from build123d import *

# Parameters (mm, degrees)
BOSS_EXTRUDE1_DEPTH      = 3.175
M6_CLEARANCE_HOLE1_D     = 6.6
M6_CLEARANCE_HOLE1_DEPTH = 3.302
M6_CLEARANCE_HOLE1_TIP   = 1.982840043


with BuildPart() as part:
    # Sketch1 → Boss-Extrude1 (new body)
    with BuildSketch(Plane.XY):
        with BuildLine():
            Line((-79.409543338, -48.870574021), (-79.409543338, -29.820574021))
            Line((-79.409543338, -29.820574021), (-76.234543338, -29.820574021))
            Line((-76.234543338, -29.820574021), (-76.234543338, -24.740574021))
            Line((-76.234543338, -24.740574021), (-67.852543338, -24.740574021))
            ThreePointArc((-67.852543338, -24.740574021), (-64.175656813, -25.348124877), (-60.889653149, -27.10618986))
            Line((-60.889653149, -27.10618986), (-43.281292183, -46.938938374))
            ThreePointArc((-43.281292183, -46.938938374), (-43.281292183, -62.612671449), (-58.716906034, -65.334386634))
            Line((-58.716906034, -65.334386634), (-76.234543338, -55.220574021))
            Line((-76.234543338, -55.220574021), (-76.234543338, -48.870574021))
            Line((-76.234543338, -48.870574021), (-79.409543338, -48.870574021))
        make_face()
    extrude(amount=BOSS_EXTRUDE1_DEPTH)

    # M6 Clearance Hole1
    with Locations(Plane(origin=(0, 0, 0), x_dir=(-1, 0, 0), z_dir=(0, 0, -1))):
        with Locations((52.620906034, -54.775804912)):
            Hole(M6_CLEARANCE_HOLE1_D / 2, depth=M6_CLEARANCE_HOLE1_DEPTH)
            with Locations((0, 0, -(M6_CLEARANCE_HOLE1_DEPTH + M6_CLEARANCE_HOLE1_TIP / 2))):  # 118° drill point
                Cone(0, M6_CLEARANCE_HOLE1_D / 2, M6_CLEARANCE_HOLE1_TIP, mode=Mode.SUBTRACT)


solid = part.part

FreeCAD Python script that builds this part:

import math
import FreeCAD as App
import Part
import Sketcher
from FreeCAD import Vector
Q = App.Units.Quantity

doc = App.newDocument("Part")
body = doc.addObject("PartDesign::Body", "Body")

sketch1 = body.newObject("Sketcher::SketchObject", "Sketch")
sketch1.AttachmentSupport = (doc.getObject("XY_Plane"), [""])
sketch1.MapMode = "FlatFace"
sketch1.addGeometry([
    Part.LineSegment(Vector(-79.4, -29.8, 0), Vector(-79.4, -48.9, 0)),
    Part.LineSegment(Vector(-79.4, -48.9, 0), Vector(-76.2, -48.9, 0)),
    Part.LineSegment(Vector(-76.2, -48.9, 0), Vector(-76.2, -55.2, 0)),
    Part.LineSegment(Vector(-76.2, -55.2, 0), Vector(-58.7, -65.3, 0)),
    Part.ArcOfCircle(Part.Circle(Vector(-52.6, -54.8, 0), Vector(0, 0, 1), 12.2), math.radians(-120), math.radians(40)),
    Part.LineSegment(Vector(-43.3, -46.9, 0), Vector(-60.9, -27.1, 0)),
    Part.ArcOfCircle(Part.Circle(Vector(-67.9, -36.2, 0), Vector(0, 0, 1), 11.4), math.radians(52), math.radians(90)),
    Part.LineSegment(Vector(-67.9, -24.7, 0), Vector(-76.2, -24.7, 0)),
    Part.LineSegment(Vector(-76.2, -24.7, 0), Vector(-76.2, -29.8, 0)),
    Part.LineSegment(Vector(-76.2, -29.8, 0), Vector(-79.4, -29.8, 0)),
], False)
sketch1.addConstraint([
    Sketcher.Constraint("Coincident", 0, 2, 1, 1),
    Sketcher.Constraint("Coincident", 1, 2, 2, 1),
    Sketcher.Constraint("Coincident", 2, 2, 3, 1),
    Sketcher.Constraint("Tangent", 3, 2, 4, 1),
    Sketcher.Constraint("Coincident", 4, 2, 5, 1),
    Sketcher.Constraint("Coincident", 5, 2, 6, 1),
    Sketcher.Constraint("Tangent", 6, 2, 7, 1),
    Sketcher.Constraint("Coincident", 7, 2, 8, 1),
    Sketcher.Constraint("Coincident", 8, 2, 9, 1),
    Sketcher.Constraint("Coincident", 9, 2, 0, 1),
    Sketcher.Constraint("Vertical", 0),
    Sketcher.Constraint("Horizontal", 1),
    Sketcher.Constraint("Vertical", 2),
    Sketcher.Constraint("Horizontal", 7),
    Sketcher.Constraint("Vertical", 8),
    Sketcher.Constraint("Horizontal", 9),
    Sketcher.Constraint("Vertical", 2, 2, 7, 2),
    Sketcher.Constraint("Radius", 4, Q("0.48 in")),
    Sketcher.Constraint("Radius", 6, Q("0.45 in")),
    Sketcher.Constraint("DistanceY", 8, 2, 8, 1, Q("0.2 in")),
    Sketcher.Constraint("Angle", 3, Q("-30 deg")),
    Sketcher.Constraint("DistanceX", 7, 2, 7, 1, Q("0.33 in")),
    Sketcher.Constraint("DistanceY", 0, 2, 0, 1, Q("0.75 in")),
    Sketcher.Constraint("DistanceY", 2, 2, 2, 1, Q("0.25 in")),
    Sketcher.Constraint("DistanceX", 1, 1, 1, 2, Q("0.125 in")),
    Sketcher.Constraint("DistanceY", 4, 2, -1, 1, Q("46.938938 mm")),
    Sketcher.Constraint("DistanceY", 5, 2, -1, 1, Q("27.10619 mm")),
    Sketcher.Constraint("DistanceY", 4, 3, 6, 3, Q("18.605231 mm")),
    Sketcher.Constraint("DistanceY", 3, 2, 4, 2, Q("18.395448 mm")),
    Sketcher.Constraint("DistanceX", 4, 3, -1, 1, Q("52.620906 mm")),
])
pad1 = body.newObject("PartDesign::Pad", "Pad")
pad1.Profile = sketch1
pad1.Length = Q("0.125 in")

sketch2 = body.newObject("Sketcher::SketchObject", "Sketch001")
sketch2.AttachmentSupport = (doc.getObject("XY_Plane"), [""])
sketch2.MapMode = "FlatFace"
sketch2.addGeometry(Part.Circle(Vector(-52.6, -54.8, 0), Vector(0, 0, 1), 3.3), False)
sketch2.addConstraint([
    Sketcher.Constraint("Diameter", 0, Q("6.6 mm")),
    Sketcher.Constraint("DistanceX", 0, 3, -1, 1, Q("52.620906 mm")),
    Sketcher.Constraint("DistanceY", 0, 3, -1, 1, Q("54.775805 mm")),
])
doc.recompute()
hole = body.newObject("PartDesign::Hole", "Hole")
hole.Profile = sketch2
hole.ThreadType = "None"
hole.Diameter = 6.6
hole.DepthType = "Dimension"
hole.Depth = Q("0.13 in")
hole.DrillPoint = "Angled"
hole.DrillPointAngle = 118
hole.Reversed = True

doc.recompute()
